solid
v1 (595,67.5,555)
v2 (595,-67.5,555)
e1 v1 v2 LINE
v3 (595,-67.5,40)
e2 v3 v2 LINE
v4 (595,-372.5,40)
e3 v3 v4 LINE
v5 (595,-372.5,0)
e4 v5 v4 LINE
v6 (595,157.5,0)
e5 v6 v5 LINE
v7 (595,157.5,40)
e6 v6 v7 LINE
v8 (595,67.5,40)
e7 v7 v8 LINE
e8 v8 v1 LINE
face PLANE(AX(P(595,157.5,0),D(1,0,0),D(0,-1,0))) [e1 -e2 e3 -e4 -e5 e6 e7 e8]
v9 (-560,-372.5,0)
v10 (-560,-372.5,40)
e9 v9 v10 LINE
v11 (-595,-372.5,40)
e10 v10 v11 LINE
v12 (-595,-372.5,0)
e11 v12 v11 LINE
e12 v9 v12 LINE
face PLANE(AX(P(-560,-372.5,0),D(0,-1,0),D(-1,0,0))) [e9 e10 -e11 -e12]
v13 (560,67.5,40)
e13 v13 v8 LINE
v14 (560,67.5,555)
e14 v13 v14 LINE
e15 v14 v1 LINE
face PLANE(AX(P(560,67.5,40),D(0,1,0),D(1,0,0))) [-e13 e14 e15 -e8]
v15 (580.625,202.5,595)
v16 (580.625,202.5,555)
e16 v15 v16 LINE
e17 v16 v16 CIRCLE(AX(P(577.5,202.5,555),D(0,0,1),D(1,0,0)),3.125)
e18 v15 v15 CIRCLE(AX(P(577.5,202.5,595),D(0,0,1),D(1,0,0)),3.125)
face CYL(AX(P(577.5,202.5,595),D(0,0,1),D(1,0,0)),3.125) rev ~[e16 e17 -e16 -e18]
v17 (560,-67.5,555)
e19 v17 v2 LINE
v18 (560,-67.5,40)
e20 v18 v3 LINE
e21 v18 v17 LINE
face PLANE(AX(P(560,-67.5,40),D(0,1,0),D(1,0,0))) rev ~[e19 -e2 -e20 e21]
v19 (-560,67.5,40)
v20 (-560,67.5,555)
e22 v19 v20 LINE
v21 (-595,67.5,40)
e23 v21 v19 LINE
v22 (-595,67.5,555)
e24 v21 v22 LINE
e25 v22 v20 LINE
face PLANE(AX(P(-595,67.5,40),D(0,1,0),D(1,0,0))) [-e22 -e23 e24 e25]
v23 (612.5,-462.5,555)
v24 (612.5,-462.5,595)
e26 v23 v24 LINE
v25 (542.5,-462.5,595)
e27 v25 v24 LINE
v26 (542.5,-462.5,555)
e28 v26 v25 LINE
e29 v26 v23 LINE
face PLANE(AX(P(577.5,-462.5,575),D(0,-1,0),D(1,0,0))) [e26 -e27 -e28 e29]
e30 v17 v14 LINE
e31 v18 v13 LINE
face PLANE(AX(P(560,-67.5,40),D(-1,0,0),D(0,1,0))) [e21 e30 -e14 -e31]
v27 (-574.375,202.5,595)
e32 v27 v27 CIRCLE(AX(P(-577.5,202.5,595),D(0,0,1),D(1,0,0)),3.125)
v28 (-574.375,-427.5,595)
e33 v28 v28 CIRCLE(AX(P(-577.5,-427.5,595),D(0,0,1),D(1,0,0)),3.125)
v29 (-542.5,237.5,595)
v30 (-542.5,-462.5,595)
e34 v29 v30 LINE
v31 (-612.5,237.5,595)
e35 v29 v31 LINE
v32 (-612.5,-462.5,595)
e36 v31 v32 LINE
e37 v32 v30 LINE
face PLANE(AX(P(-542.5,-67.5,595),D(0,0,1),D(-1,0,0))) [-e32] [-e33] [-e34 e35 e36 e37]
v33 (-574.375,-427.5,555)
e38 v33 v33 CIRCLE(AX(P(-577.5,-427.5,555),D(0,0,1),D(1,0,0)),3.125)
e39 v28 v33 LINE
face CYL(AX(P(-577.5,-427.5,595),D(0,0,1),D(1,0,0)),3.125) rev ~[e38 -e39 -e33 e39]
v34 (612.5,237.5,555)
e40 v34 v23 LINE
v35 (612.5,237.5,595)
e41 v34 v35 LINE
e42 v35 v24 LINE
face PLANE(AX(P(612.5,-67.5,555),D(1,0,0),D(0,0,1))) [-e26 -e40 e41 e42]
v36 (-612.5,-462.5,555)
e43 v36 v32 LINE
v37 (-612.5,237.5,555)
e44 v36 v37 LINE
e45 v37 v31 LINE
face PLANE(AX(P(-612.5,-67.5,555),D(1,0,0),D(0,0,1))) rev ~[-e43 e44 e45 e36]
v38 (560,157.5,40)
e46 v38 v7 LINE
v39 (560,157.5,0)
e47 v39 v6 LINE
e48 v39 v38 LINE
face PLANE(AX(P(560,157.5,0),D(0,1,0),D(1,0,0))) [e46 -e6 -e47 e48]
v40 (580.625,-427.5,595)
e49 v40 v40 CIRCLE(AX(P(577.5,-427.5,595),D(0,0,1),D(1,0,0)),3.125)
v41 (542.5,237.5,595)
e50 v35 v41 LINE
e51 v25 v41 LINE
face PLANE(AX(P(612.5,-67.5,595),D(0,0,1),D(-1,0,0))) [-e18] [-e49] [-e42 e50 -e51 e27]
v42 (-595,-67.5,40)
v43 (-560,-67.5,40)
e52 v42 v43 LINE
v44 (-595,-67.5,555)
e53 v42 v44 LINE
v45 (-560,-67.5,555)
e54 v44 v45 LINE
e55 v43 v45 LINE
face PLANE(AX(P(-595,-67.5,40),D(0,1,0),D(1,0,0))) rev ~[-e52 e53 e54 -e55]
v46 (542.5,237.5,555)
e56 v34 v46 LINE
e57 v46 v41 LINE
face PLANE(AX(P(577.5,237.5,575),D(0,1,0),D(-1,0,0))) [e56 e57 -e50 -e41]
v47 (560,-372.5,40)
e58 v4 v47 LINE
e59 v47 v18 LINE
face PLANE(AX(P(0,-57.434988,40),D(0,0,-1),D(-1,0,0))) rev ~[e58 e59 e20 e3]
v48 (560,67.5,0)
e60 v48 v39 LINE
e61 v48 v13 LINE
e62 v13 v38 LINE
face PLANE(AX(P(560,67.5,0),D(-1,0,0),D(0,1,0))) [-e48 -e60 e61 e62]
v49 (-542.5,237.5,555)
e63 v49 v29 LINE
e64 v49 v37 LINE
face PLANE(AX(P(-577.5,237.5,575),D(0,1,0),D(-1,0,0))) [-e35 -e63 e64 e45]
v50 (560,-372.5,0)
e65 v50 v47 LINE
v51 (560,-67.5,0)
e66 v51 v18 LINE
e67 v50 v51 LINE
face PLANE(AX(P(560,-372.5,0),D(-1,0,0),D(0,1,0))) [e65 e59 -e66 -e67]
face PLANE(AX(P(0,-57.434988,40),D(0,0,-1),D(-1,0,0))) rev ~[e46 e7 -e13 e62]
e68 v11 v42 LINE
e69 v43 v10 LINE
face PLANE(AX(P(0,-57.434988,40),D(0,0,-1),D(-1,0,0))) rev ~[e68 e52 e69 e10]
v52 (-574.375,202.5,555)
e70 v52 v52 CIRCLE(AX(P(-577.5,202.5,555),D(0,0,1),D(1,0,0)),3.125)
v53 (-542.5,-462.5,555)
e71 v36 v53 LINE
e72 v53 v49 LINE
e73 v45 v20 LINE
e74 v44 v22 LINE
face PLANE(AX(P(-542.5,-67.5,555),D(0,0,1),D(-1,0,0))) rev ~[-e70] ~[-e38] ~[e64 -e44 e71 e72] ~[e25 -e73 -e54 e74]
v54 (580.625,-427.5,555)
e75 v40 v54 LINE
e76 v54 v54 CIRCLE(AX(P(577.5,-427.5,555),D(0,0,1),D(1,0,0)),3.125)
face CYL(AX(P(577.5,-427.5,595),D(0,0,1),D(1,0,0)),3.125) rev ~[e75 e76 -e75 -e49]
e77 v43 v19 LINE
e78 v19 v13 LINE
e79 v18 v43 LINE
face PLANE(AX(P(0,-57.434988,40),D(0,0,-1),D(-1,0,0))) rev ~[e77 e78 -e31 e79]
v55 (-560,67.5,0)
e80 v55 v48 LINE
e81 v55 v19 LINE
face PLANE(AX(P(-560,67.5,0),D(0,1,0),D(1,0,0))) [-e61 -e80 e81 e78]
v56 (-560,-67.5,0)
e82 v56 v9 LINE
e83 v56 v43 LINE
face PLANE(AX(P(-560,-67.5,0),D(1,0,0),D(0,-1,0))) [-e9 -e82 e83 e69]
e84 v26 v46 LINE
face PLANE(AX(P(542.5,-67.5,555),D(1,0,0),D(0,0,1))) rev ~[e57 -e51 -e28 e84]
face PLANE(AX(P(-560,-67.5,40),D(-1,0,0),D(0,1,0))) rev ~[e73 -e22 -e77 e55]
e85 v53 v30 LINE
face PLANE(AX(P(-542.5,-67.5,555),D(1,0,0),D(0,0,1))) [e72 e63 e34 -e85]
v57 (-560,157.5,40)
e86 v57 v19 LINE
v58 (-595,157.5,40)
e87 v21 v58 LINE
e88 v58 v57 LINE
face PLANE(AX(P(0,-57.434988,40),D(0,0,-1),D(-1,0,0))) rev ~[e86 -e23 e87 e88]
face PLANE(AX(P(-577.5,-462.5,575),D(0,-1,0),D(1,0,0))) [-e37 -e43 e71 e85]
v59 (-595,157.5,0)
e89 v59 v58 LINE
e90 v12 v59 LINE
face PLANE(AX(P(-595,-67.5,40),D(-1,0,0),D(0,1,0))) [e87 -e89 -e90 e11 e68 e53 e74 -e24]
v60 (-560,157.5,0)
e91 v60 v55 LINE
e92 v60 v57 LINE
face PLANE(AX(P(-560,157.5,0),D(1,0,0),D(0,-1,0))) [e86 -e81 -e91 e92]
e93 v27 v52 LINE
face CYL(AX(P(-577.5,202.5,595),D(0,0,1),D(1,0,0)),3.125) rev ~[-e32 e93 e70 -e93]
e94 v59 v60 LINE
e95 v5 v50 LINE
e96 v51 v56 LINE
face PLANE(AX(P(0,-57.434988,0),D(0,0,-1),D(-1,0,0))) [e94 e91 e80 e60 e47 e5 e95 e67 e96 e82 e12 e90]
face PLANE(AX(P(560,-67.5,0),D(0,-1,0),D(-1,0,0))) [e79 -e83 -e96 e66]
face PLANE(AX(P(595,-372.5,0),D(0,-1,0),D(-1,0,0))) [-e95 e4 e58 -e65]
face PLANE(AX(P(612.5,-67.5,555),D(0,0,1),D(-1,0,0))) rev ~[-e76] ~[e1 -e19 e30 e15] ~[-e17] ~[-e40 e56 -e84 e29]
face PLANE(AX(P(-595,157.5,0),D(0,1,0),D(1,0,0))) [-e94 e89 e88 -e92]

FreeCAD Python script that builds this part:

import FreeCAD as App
import Part
import Sketcher

V = App.Vector
Q = App.Units.Quantity


def add_polygon(sketch, points):
    """Adds a closed chain of lines whose ends are joined by coincident constraints."""
    first, n = sketch.GeometryCount, len(points)
    for a, b in zip(points, points[1:] + points[:1]):
        sketch.addGeometry(Part.LineSegment(App.Vector(*a, 0), App.Vector(*b, 0)), False)
    for i in range(n):
        sketch.addConstraint(Sketcher.Constraint("Coincident", first + i, 2, first + (i + 1) % n, 1))

doc = App.newDocument("Part")
body = doc.addObject("PartDesign::Body", "Body")

# Sketch on XY plane
sketch1 = doc.addObject("Sketcher::SketchObject", "Sketch")
body.addObject(sketch1)
sketch1.AttachmentSupport = (doc.XY_Plane, [""])
sketch1.MapMode = "FlatFace"
add_polygon(sketch1, [(560, 67.5), (-560, 67.5), (-560, 157.5), (-595, 157.5), (-595, -372.5), (-560, -372.5), (-560, -67.5), (560, -67.5), (560, -372.5), (595, -372.5), (595, 157.5), (560, 157.5)])  # lines 0-11
sketch1.addConstraint(Sketcher.Constraint("Horizontal", 0))
sketch1.addConstraint(Sketcher.Constraint("Vertical", 1))
sketch1.addConstraint(Sketcher.Constraint("Horizontal", 2))
sketch1.addConstraint(Sketcher.Constraint("Vertical", 3))
sketch1.addConstraint(Sketcher.Constraint("Horizontal", 4))
sketch1.addConstraint(Sketcher.Constraint("Vertical", 5))
sketch1.addConstraint(Sketcher.Constraint("Horizontal", 6))
sketch1.addConstraint(Sketcher.Constraint("Vertical", 7))
sketch1.addConstraint(Sketcher.Constraint("Horizontal", 8))
sketch1.addConstraint(Sketcher.Constraint("Vertical", 9))
sketch1.addConstraint(Sketcher.Constraint("Horizontal", 10))
sketch1.addConstraint(Sketcher.Constraint("Vertical", 11))
sketch1.addConstraint(Sketcher.Constraint("Symmetric", 0, 2, 6, 2, -1, 1))
sketch1.addConstraint(Sketcher.Constraint("Symmetric", 4, 2, 7, 2, -2))
sketch1.addConstraint(Sketcher.Constraint("Symmetric", 2, 2, 9, 2, -2))
sketch1.addConstraint(Sketcher.Constraint("Vertical", 7, 2, 10, 2))
sketch1.addConstraint(Sketcher.Constraint("DistanceX", 0, 2, 0, 1, Q("1120 mm")))
sketch1.addConstraint(Sketcher.Constraint("DistanceX", 2, 2, 2, 1, Q("35 mm")))
sketch1.addConstraint(Sketcher.Constraint("DistanceY", 1, 1, 1, 2, Q("90 mm")))
sketch1.addConstraint(Sketcher.Constraint("DistanceY", 3, 2, 3, 1, Q("530 mm")))
sketch1.addConstraint(Sketcher.Constraint("DistanceY", 5, 1, 5, 2, Q("305 mm")))
pad1 = doc.addObject("PartDesign::Pad", "Pad")
body.addObject(pad1)
pad1.Profile = sketch1
pad1.Length = 40

# Sketch on XY plane
sketch2 = doc.addObject("Sketcher::SketchObject", "Sketch001")
body.addObject(sketch2)
sketch2.AttachmentSupport = (doc.XY_Plane, [""])
sketch2.MapMode = "FlatFace"
sketch2.AttachmentOffset = App.Placement(V(0, 0, 40), App.Rotation())
add_polygon(sketch2, [(-595, 67.5), (-595, -67.5), (-560, -67.5), (-560, 67.5)])  # lines 0-3
add_polygon(sketch2, [(560, 67.5), (560, -67.5), (595, -67.5), (595, 67.5)])  # lines 4-7
sketch2.addConstraint(Sketcher.Constraint("Vertical", 0))
sketch2.addConstraint(Sketcher.Constraint("Horizontal", 1))
sketch2.addConstraint(Sketcher.Constraint("Vertical", 2))
sketch2.addConstraint(Sketcher.Constraint("Horizontal", 3))
sketch2.addConstraint(Sketcher.Constraint("Vertical", 4))
sketch2.addConstraint(Sketcher.Constraint("Horizontal", 5))
sketch2.addConstraint(Sketcher.Constraint("Vertical", 6))
sketch2.addConstraint(Sketcher.Constraint("Horizontal", 7))
sketch2.addConstraint(Sketcher.Constraint("Symmetric", 2, 2, 4, 2, -1, 1))
sketch2.addConstraint(Sketcher.Constraint("Symmetric", 0, 2, 6, 2, -1, 1))
sketch2.addConstraint(Sketcher.Constraint("Horizontal", 1, 2, 4, 2))
sketch2.addConstraint(Sketcher.Constraint("DistanceX", 1, 1, 1, 2, Q("35 mm")))
sketch2.addConstraint(Sketcher.Constraint("DistanceY", 0, 2, 0, 1, Q("135 mm")))
sketch2.addConstraint(Sketcher.Constraint("DistanceX", 0, 2, -1, 1, Q("595 mm")))
pad2 = doc.addObject("PartDesign::Pad", "Pad001")
body.addObject(pad2)
pad2.Profile = sketch2
pad2.Length = 555

# Sketch on XZ plane
sketch3 = doc.addObject("Sketcher::SketchObject", "Sketch002")
body.addObject(sketch3)
sketch3.AttachmentSupport = (doc.XZ_Plane, [""])
sketch3.MapMode = "FlatFace"
sketch3.AttachmentOffset = App.Placement(V(0, 0, 67.5), App.Rotation())
add_polygon(sketch3, [(-612.5, 595), (-612.5, 555), (-542.5, 555), (-542.5, 595)])  # lines 0-3
add_polygon(sketch3, [(542.5, 595), (542.5, 555), (612.5, 555), (612.5, 595)])  # lines 4-7
sketch3.addConstraint(Sketcher.Constraint("Vertical", 0))
sketch3.addConstraint(Sketcher.Constraint("Horizontal", 1))
sketch3.addConstraint(Sketcher.Constraint("Vertical", 2))
sketch3.addConstraint(Sketcher.Constraint("Horizontal", 3))
sketch3.addConstraint(Sketcher.Constraint("Vertical", 4))
sketch3.addConstraint(Sketcher.Constraint("Horizontal", 5))
sketch3.addConstraint(Sketcher.Constraint("Vertical", 6))
sketch3.addConstraint(Sketcher.Constraint("Horizontal", 7))
sketch3.addConstraint(Sketcher.Constraint("Symmetric", 1, 2, 4, 2, -2))
sketch3.addConstraint(Sketcher.Constraint("Symmetric", 3, 2, 6, 2, -2))
sketch3.addConstraint(Sketcher.Constraint("DistanceX", 1, 1, 1, 2, Q("70 mm")))
sketch3.addConstraint(Sketcher.Constraint("DistanceY", 0, 2, 0, 1, Q("40 mm")))
sketch3.addConstraint(Sketcher.Constraint("DistanceY", -1, 1, 0, 2, Q("555 mm")))
sketch3.addConstraint(Sketcher.Constraint("DistanceX", 1, 2, 4, 2, Q("1085 mm")))
pad3 = doc.addObject("PartDesign::Pad", "Pad002")
body.addObject(pad3)
pad3.Profile = sketch3
pad3.Length = 395

# Sketch on XZ plane
sketch4 = doc.addObject("Sketcher::SketchObject", "Sketch003")
body.addObject(sketch4)
sketch4.AttachmentSupport = (doc.XZ_Plane, [""])
sketch4.MapMode = "FlatFace"
sketch4.AttachmentOffset = App.Placement(V(0, 0, 67.5), App.Rotation())
add_polygon(sketch4, [(-542.5, 595), (-542.5, 555), (-612.5, 555), (-612.5, 595)])  # lines 0-3
add_polygon(sketch4, [(612.5, 595), (612.5, 555), (542.5, 555), (542.5, 595)])  # lines 4-7
sketch4.addConstraint(Sketcher.Constraint("Vertical", 0))
sketch4.addConstraint(Sketcher.Constraint("Horizontal", 1))
sketch4.addConstraint(Sketcher.Constraint("Vertical", 2))
sketch4.addConstraint(Sketcher.Constraint("Horizontal", 3))
sketch4.addConstraint(Sketcher.Constraint("Vertical", 4))
sketch4.addConstraint(Sketcher.Constraint("Horizontal", 5))
sketch4.addConstraint(Sketcher.Constraint("Vertical", 6))
sketch4.addConstraint(Sketcher.Constraint("Horizontal", 7))
sketch4.addConstraint(Sketcher.Constraint("Symmetric", 1, 2, 4, 2, -2))
sketch4.addConstraint(Sketcher.Constraint("Symmetric", 3, 2, 6, 2, -2))
sketch4.addConstraint(Sketcher.Constraint("DistanceX", 1, 2, 1, 1, Q("70 mm")))
sketch4.addConstraint(Sketcher.Constraint("DistanceY", 0, 2, 0, 1, Q("40 mm")))
sketch4.addConstraint(Sketcher.Constraint("DistanceY", -1, 1, 0, 2, Q("555 mm")))
sketch4.addConstraint(Sketcher.Constraint("DistanceX", 0, 2, 4, 2, Q("1155 mm")))
pad4 = doc.addObject("PartDesign::Pad", "Pad003")
body.addObject(pad4)
pad4.Profile = sketch4
pad4.Length = 305
pad4.Reversed = True

# Sketch on XY plane
sketch5 = doc.addObject("Sketcher::SketchObject", "Sketch004")
body.addObject(sketch5)
sketch5.AttachmentSupport = (doc.XY_Plane, [""])
sketch5.MapMode = "FlatFace"
sketch5.AttachmentOffset = App.Placement(V(0, 0, 595), App.Rotation())
sketch5.addGeometry(Part.Circle(V(-577.5, -427.5, 0), V(0, 0, 1), 3.125), False)
sketch5.addGeometry(Part.Circle(V(577.5, -427.5, 0), V(0, 0, 1), 3.125), False)
sketch5.addGeometry(Part.Circle(V(-577.5, 202.5, 0), V(0, 0, 1), 3.125), False)
sketch5.addGeometry(Part.Circle(V(577.5, 202.5, 0), V(0, 0, 1), 3.125), False)
sketch5.addConstraint(Sketcher.Constraint("Equal", 0, 1))
sketch5.addConstraint(Sketcher.Constraint("Equal", 1, 2))
sketch5.addConstraint(Sketcher.Constraint("Equal", 2, 3))
sketch5.addConstraint(Sketcher.Constraint("Symmetric", 0, 3, 1, 3, -2))
sketch5.addConstraint(Sketcher.Constraint("Symmetric", 2, 3, 3, 3, -2))
sketch5.addConstraint(Sketcher.Constraint("Vertical", 0, 3, 2, 3))
sketch5.addConstraint(Sketcher.Constraint("Diameter", 0, Q("6.25 mm")))
sketch5.addConstraint(Sketcher.Constraint("DistanceX", 0, 3, 1, 3, Q("1155 mm")))
sketch5.addConstraint(Sketcher.Constraint("DistanceY", 0, 3, 2, 3, Q("630 mm")))
sketch5.addConstraint(Sketcher.Constraint("DistanceY", 0, 3, -1, 1, Q("427.5 mm")))
pocket1 = doc.addObject("PartDesign::Pocket", "Pocket")
body.addObject(pocket1)
pocket1.Profile = sketch5
pocket1.Type = "ThroughAll"

doc.recompute()
